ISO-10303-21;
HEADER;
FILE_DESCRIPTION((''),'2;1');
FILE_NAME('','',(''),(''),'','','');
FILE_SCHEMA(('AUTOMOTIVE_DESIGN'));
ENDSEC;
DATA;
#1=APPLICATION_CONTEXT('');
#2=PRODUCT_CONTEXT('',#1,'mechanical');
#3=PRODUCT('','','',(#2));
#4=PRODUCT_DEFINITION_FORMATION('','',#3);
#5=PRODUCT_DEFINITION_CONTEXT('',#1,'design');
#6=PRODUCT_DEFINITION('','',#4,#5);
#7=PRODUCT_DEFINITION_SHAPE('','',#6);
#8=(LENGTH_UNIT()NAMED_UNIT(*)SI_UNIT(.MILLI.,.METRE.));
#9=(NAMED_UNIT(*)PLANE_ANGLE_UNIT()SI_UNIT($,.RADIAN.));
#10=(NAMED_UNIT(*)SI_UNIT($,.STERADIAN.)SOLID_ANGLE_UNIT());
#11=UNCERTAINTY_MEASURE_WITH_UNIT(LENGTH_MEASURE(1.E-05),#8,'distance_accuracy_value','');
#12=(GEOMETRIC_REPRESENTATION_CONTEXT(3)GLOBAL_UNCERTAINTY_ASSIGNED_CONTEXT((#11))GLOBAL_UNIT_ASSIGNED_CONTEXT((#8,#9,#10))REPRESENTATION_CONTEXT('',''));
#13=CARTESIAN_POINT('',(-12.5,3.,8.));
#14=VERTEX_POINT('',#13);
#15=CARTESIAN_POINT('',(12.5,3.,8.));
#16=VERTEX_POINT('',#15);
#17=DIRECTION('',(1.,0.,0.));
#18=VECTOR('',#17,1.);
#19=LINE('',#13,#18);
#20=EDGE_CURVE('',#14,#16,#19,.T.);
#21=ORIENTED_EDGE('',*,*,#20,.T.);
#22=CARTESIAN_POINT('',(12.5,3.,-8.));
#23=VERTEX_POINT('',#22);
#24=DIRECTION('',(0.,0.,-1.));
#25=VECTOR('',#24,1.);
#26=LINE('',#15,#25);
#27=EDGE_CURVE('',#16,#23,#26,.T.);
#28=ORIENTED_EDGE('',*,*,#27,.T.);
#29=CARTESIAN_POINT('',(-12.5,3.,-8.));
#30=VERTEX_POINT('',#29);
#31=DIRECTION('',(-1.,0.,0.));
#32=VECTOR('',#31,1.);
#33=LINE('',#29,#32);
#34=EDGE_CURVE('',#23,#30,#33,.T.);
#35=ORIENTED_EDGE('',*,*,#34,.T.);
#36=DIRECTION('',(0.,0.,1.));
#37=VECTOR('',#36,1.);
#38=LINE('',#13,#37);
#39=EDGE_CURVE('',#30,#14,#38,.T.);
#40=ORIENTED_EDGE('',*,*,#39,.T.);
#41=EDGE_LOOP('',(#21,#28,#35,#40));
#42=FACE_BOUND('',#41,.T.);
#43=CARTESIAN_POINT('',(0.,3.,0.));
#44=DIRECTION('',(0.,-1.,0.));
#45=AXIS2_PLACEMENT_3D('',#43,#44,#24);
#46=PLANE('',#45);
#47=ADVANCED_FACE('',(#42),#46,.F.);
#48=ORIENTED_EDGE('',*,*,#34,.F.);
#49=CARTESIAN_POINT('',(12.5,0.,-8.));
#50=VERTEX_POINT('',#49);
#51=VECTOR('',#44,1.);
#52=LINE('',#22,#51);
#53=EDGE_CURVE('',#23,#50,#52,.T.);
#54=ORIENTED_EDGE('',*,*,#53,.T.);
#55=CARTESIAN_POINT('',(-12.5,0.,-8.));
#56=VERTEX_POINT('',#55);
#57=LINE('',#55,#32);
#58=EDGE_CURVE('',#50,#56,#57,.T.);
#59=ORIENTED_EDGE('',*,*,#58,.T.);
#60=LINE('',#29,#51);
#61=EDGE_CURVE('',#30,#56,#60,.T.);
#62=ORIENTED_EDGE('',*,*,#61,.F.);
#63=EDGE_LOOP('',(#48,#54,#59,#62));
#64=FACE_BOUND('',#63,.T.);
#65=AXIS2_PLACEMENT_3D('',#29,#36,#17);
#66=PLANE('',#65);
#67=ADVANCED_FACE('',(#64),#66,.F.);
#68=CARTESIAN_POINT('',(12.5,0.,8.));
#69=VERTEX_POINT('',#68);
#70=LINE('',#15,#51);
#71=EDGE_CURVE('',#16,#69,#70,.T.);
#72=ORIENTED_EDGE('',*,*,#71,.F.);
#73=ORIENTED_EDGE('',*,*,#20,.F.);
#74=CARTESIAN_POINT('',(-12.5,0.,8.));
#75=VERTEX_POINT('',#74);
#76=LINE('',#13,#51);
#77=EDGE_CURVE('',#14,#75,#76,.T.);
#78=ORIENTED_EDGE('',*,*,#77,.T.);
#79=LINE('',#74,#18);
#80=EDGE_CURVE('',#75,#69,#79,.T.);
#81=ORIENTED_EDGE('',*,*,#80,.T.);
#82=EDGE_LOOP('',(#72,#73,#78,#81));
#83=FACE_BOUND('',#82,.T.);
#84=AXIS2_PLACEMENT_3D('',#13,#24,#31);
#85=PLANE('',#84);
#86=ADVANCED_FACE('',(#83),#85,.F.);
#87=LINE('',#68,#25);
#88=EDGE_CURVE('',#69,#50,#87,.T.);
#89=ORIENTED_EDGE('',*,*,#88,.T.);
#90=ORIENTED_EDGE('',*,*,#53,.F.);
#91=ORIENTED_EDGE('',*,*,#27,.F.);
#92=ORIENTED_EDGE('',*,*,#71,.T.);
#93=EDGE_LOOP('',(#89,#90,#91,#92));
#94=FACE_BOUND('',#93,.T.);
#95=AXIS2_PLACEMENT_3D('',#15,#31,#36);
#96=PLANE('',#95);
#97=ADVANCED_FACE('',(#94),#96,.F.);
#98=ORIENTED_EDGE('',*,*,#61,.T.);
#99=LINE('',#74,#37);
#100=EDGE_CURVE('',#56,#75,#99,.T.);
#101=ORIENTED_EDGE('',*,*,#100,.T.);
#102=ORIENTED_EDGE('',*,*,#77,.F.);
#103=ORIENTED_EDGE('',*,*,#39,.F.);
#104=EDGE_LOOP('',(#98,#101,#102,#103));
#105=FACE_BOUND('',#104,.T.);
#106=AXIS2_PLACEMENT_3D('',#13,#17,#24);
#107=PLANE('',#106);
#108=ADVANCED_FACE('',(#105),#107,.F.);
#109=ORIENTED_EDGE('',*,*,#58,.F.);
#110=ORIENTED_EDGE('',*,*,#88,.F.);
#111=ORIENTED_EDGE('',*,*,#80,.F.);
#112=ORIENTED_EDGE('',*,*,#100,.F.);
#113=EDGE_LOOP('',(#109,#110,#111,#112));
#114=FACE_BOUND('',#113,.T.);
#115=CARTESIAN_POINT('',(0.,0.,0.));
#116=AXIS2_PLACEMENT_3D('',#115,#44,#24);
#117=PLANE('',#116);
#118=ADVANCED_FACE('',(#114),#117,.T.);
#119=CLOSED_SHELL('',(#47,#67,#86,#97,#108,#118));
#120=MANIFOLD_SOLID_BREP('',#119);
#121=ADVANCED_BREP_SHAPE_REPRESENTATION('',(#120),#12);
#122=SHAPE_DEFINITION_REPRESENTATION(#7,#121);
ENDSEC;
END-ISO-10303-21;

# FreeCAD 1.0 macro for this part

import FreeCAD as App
import Part
import Sketcher
from FreeCAD import Vector
Q = App.Units.Quantity


def add_polygon(sketch, points):
    """Adds a closed chain of lines whose ends are joined by coincident constraints."""
    first, n = sketch.GeometryCount, len(points)
    for a, b in zip(points, points[1:] + points[:1]):
        sketch.addGeometry(Part.LineSegment(App.Vector(*a, 0), App.Vector(*b, 0)), False)
    for i in range(n):
        sketch.addConstraint(Sketcher.Constraint("Coincident", first + i, 2, first + (i + 1) % n, 1))

doc = App.newDocument("Part")
params = doc.addObject("Spreadsheet::Sheet", "Params")
for row, (alias, value) in enumerate([
    ("sketch1_width", "25 mm"),
    ("sketch1_height", "16 mm"),
    ("pad1_length", "3 mm"),
], start=1):
    params.set(f"A{row}", alias)
    params.set(f"B{row}", "=" + value)
    params.setAlias(f"B{row}", alias)

body = doc.addObject("PartDesign::Body", "Body")

# Sketch on XZ plane
sketch1 = body.newObject("Sketcher::SketchObject", "Sketch")
sketch1.AttachmentSupport = (doc.getObject("XZ_Plane"), [""])
sketch1.MapMode = "FlatFace"
add_polygon(sketch1, [(-12, -8), (-12, 8), (12, 8), (12, -8)])  # lines 0-3
sketch1.addConstraint(Sketcher.Constraint("Vertical", 0))
sketch1.addConstraint(Sketcher.Constraint("Horizontal", 1))
sketch1.addConstraint(Sketcher.Constraint("Vertical", 2))
sketch1.addConstraint(Sketcher.Constraint("Horizontal", 3))
sketch1.addConstraint(Sketcher.Constraint("Symmetric", 0, 2, 2, 2, -1, 1))
sketch1.addConstraint(Sketcher.Constraint("DistanceX", 1, 1, 1, 2, Q("25 mm")))
sketch1.addConstraint(Sketcher.Constraint("DistanceY", 0, 1, 0, 2, Q("16 mm")))
sketch1.setExpression("Constraints[9]", "Params.sketch1_width")
sketch1.setExpression("Constraints[10]", "Params.sketch1_height")
pad1 = body.newObject("PartDesign::Pad", "Pad")
pad1.Profile = sketch1
pad1.setExpression("Length", "Params.pad1_length")
pad1.Reversed = True

doc.recompute()
